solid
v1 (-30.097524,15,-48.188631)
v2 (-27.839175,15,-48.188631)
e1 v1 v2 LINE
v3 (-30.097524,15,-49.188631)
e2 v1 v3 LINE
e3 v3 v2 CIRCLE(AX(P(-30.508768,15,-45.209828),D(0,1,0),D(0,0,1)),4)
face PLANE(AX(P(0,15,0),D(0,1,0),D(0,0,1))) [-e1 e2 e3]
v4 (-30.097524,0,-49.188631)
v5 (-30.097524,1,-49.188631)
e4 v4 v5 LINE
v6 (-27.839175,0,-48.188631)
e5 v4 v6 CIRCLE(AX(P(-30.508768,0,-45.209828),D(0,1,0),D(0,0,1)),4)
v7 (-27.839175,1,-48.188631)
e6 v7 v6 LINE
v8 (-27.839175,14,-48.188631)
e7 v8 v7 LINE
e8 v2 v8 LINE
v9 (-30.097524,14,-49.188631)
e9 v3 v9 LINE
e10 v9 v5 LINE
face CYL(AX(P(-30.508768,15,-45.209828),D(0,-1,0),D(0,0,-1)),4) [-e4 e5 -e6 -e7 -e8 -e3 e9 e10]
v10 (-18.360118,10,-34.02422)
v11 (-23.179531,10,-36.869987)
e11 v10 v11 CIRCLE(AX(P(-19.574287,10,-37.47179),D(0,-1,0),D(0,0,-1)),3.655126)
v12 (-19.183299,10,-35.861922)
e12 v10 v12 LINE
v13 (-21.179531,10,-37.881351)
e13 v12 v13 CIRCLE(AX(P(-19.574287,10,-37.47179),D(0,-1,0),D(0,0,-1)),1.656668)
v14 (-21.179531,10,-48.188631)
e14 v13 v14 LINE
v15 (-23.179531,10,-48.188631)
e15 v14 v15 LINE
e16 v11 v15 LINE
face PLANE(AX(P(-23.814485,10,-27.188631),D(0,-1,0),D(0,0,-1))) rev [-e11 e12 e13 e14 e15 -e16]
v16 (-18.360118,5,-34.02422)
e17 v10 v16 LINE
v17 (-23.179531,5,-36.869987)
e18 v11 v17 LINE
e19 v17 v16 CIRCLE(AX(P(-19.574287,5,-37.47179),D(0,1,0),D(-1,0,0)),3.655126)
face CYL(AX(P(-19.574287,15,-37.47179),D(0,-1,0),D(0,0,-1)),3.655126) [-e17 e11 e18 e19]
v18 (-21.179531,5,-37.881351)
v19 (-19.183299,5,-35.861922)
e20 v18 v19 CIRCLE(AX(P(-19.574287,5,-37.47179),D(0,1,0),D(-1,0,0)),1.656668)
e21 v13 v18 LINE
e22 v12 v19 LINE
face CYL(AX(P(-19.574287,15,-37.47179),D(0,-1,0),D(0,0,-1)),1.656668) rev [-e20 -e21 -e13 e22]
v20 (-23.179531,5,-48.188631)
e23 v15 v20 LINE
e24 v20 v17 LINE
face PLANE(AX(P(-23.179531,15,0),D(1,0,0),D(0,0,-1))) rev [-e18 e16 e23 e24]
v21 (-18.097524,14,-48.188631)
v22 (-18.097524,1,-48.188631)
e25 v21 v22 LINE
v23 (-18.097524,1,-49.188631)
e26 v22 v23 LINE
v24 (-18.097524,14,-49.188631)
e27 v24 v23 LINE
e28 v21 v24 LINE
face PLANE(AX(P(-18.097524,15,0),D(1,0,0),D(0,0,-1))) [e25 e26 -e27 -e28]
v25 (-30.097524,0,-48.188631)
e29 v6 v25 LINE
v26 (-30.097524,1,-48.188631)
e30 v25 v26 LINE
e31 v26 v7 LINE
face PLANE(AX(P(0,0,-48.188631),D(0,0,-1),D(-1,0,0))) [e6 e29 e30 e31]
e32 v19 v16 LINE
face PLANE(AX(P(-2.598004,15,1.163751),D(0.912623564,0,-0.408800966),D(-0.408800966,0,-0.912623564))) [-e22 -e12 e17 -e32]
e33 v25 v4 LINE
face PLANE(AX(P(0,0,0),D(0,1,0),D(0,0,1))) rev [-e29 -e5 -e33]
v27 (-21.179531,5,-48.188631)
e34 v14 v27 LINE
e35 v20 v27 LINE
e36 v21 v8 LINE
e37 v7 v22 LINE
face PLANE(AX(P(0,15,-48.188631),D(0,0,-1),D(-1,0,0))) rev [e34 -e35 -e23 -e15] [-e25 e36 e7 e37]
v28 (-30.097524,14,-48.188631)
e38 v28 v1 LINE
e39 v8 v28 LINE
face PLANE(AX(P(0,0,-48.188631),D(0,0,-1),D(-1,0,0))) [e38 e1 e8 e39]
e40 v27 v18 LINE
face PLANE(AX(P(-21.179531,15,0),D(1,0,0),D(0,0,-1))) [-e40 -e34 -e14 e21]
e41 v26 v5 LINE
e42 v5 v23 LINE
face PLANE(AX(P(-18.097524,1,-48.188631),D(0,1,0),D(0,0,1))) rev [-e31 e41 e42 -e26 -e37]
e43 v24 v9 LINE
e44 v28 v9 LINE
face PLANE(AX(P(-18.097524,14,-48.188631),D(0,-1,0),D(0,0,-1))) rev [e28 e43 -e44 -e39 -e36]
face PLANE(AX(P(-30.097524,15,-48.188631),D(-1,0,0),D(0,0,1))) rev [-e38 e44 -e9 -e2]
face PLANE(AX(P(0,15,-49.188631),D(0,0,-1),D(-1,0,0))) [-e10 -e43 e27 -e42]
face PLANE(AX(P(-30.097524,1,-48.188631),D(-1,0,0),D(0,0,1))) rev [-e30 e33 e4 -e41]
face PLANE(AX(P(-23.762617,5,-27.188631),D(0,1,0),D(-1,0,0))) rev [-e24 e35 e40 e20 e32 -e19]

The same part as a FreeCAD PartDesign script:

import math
import FreeCAD as App
import Part
import Sketcher
from FreeCAD import Vector
Q = App.Units.Quantity

doc = App.newDocument("Part")
params = doc.addObject("Spreadsheet::Sheet", "Params")
for row, (alias, value) in enumerate([
    ("sketch1_radius", "4 mm"),
    ("sketch1_width", "12 mm"),
    ("sketch1_height", "1 mm"),
    ("pad1_length", "15 mm"),
    ("sketch2_width", "12 mm"),
    ("sketch2_height", "1 mm"),
    ("pocket1_length", "1 mm"),
    ("pocket2_length", "21 mm"),
], start=1):
    params.set(f"A{row}", alias)
    params.set(f"B{row}", "=" + value)
    params.setAlias(f"B{row}", alias)

body = doc.addObject("PartDesign::Body", "Body")

# Sketch on XZ plane
sketch1 = doc.addObject("Sketcher::SketchObject", "Sketch")
body.addObject(sketch1)
sketch1.AttachmentSupport = (doc.XZ_Plane, [""])
sketch1.MapMode = "FlatFace"
sketch1.addGeometry([
    Part.ArcOfCircle(Part.Circle(Vector(-30.5, -45.2, 0), Vector(0, 0, 1), 4), math.radians(-48), math.radians(0)),  # 0
    Part.LineSegment(Vector(-27.8, -48.2, 0), Vector(-23.2, -48.2, 0)),  # 1
    Part.LineSegment(Vector(-23.2, -48.2, 0), Vector(-23.2, -36.9, 0)),  # 2
    Part.ArcOfCircle(Part.Circle(Vector(-19.6, -37.5, 0), Vector(0, 0, 1), 3.7), math.radians(71), math.radians(171)),  # 3
    Part.LineSegment(Vector(-18.4, -34, 0), Vector(-19.2, -35.9, 0)),  # 4
    Part.ArcOfCircle(Part.Circle(Vector(-19.6, -37.5, 0), Vector(0, 0, 1), 1.7), math.radians(76), math.radians(166)),  # 5
    Part.ArcOfCircle(Part.Circle(Vector(-19.6, -37.5, 0), Vector(0, 0, 1), 1.7), math.radians(166), math.radians(194)),  # 6
    Part.LineSegment(Vector(-21.2, -37.9, 0), Vector(-21.2, -48.2, 0)),  # 7
    Part.LineSegment(Vector(-21.2, -48.2, 0), Vector(-18.1, -48.2, 0)),  # 8
    Part.LineSegment(Vector(-18.1, -48.2, 0), Vector(-18.1, -49.2, 0)),  # 9
    Part.LineSegment(Vector(-18.1, -49.2, 0), Vector(-30.1, -49.2, 0)),  # 10
    Part.ArcOfCircle(Part.Circle(Vector(-30.5, -45.2, 0), Vector(0, 0, 1), 4), math.radians(0), math.radians(276)),  # 11
], False)
sketch1.addConstraint([
    Sketcher.Constraint("Coincident", 0, 1, 1, 1),
    Sketcher.Constraint("Coincident", 1, 2, 2, 1),
    Sketcher.Constraint("Coincident", 2, 2, 3, 2),
    Sketcher.Constraint("Coincident", 3, 1, 4, 1),
    Sketcher.Constraint("Coincident", 4, 2, 5, 1),
    Sketcher.Constraint("Tangent", 5, 2, 6, 1),
    Sketcher.Constraint("Coincident", 6, 2, 7, 1),
    Sketcher.Constraint("Coincident", 7, 2, 8, 1),
    Sketcher.Constraint("Coincident", 8, 2, 9, 1),
    Sketcher.Constraint("Coincident", 9, 2, 10, 1),
    Sketcher.Constraint("Coincident", 10, 2, 11, 2),
    Sketcher.Constraint("Tangent", 11, 1, 0, 2),
    Sketcher.Constraint("Horizontal", 1),
    Sketcher.Constraint("Vertical", 2),
    Sketcher.Constraint("Vertical", 7),
    Sketcher.Constraint("Horizontal", 8),
    Sketcher.Constraint("Vertical", 9),
    Sketcher.Constraint("Horizontal", 10),
    Sketcher.Constraint("Coincident", 5, 3, 3, 3),
    Sketcher.Constraint("Equal", 5, 6),
    Sketcher.Constraint("Equal", 0, 11),
    Sketcher.Constraint("Horizontal", 1, 2, 7, 2),
    Sketcher.Constraint("Horizontal", 0, 3, 11, 1),
    Sketcher.Constraint("Vertical", 5, 2, 6, 2),
    Sketcher.Constraint("Radius", 0, Q("4 mm")),
    Sketcher.Constraint("DistanceX", 10, 2, 10, 1, Q("12 mm")),
    Sketcher.Constraint("DistanceY", 9, 2, 9, 1, Q("1 mm")),
    Sketcher.Constraint("DistanceX", 2, 2, 5, 2, Q("2 mm")),
    Sketcher.Constraint("Radius", 3, Q("3.655126 mm")),
    Sketcher.Constraint("Radius", 5, Q("1.656668 mm")),
    Sketcher.Constraint("DistanceY", 7, 2, 7, 1, Q("10.30728 mm")),
    Sketcher.Constraint("DistanceX", 4, 2, -1, 1, Q("19.183299 mm")),
    Sketcher.Constraint("DistanceX", 1, 1, 1, 2, Q("4.659644 mm")),
    Sketcher.Constraint("DistanceX", 8, 1, 8, 2, Q("3.082007 mm")),
    Sketcher.Constraint("DistanceY", 2, 1, 2, 2, Q("11.318644 mm")),
    Sketcher.Constraint("DistanceY", 3, 3, -1, 1, Q("37.47179 mm")),
    Sketcher.Constraint("DistanceX", 1, 2, -1, 1, Q("23.179531 mm")),
    Sketcher.Constraint("DistanceY", 3, 1, -1, 1, Q("34.02422 mm")),
])
sketch1.setExpression("Constraints[24]", "Params.sketch1_radius")
sketch1.setExpression("Constraints[25]", "Params.sketch1_width")
sketch1.setExpression("Constraints[26]", "Params.sketch1_height")
pad1 = doc.addObject("PartDesign::Pad", "Pad")
body.addObject(pad1)
pad1.Profile = sketch1
pad1.setExpression("Length", "Params.pad1_length")
pad1.Reversed = True

# Sketch on XY plane
sketch2 = doc.addObject("Sketcher::SketchObject", "Sketch001")
body.addObject(sketch2)
sketch2.AttachmentSupport = (doc.XY_Plane, [""])
sketch2.MapMode = "FlatFace"
sketch2.AttachmentOffset = App.Placement(Vector(0, 0, -49.188631), App.Rotation())
sketch2.addGeometry([
    Part.LineSegment(Vector(-18.1, 15, 0), Vector(-18.1, 14, 0)),  # 0
    Part.LineSegment(Vector(-18.1, 14, 0), Vector(-30.1, 14, 0)),  # 1
    Part.LineSegment(Vector(-30.1, 14, 0), Vector(-30.1, 15, 0)),  # 2
    Part.LineSegment(Vector(-30.1, 15, 0), Vector(-18.1, 15, 0)),  # 3
    Part.LineSegment(Vector(-18.1, 1, 0), Vector(-18.1, 0, 0)),  # 4
    Part.LineSegment(Vector(-18.1, 0, 0), Vector(-30.1, 0, 0)),  # 5
    Part.LineSegment(Vector(-30.1, 0, 0), Vector(-30.1, 1, 0)),  # 6
    Part.LineSegment(Vector(-30.1, 1, 0), Vector(-18.1, 1, 0)),  # 7
], False)
sketch2.addConstraint([
    Sketcher.Constraint("Coincident", 0, 2, 1, 1),
    Sketcher.Constraint("Coincident", 1, 2, 2, 1),
    Sketcher.Constraint("Coincident", 2, 2, 3, 1),
    Sketcher.Constraint("Coincident", 3, 2, 0, 1),
    Sketcher.Constraint("Coincident", 4, 2, 5, 1),
    Sketcher.Constraint("Coincident", 5, 2, 6, 1),
    Sketcher.Constraint("Coincident", 6, 2, 7, 1),
    Sketcher.Constraint("Coincident", 7, 2, 4, 1),
    Sketcher.Constraint("Vertical", 0),
    Sketcher.Constraint("Horizontal", 1),
    Sketcher.Constraint("Vertical", 2),
    Sketcher.Constraint("Horizontal", 3),
    Sketcher.Constraint("Vertical", 4),
    Sketcher.Constraint("Horizontal", 5),
    Sketcher.Constraint("Vertical", 6),
    Sketcher.Constraint("Horizontal", 7),
    Sketcher.Constraint("PointOnObject", 4, 2, -1),
    Sketcher.Constraint("Vertical", 3, 2, 4, 2),
    Sketcher.Constraint("Vertical", 2, 2, 5, 2),
    Sketcher.Constraint("Equal", 2, 4),
    Sketcher.Constraint("DistanceX", 1, 2, 1, 1, Q("12 mm")),
    Sketcher.Constraint("DistanceY", 0, 2, 0, 1, Q("1 mm")),
    Sketcher.Constraint("DistanceY", -1, 1, 0, 2, Q("14 mm")),
    Sketcher.Constraint("DistanceX", 0, 2, -1, 1, Q("18.097524 mm")),
])
sketch2.setExpression("Constraints[20]", "Params.sketch2_width")
sketch2.setExpression("Constraints[21]", "Params.sketch2_height")
pocket1 = doc.addObject("PartDesign::Pocket", "Pocket")
body.addObject(pocket1)
pocket1.Profile = sketch2
pocket1.setExpression("Length", "Params.pocket1_length")
pocket1.Reversed = True

# Sketch on XY plane
sketch3 = doc.addObject("Sketcher::SketchObject", "Sketch002")
body.addObject(sketch3)
sketch3.AttachmentSupport = (doc.XY_Plane, [""])
sketch3.MapMode = "FlatFace"
sketch3.AttachmentOffset = App.Placement(Vector(0, 0, -48.188631), App.Rotation())
sketch3.addGeometry([
    Part.LineSegment(Vector(-18, 16, 0), Vector(-18, 10, 0)),  # 0
    Part.LineSegment(Vector(-18, 10, 0), Vector(-24, 10, 0)),  # 1
    Part.LineSegment(Vector(-24, 10, 0), Vector(-24, 16, 0)),  # 2
    Part.LineSegment(Vector(-24, 16, 0), Vector(-18, 16, 0)),  # 3
    Part.LineSegment(Vector(-18, 5, 0), Vector(-18, -1, 0)),  # 4
    Part.LineSegment(Vector(-18, -1, 0), Vector(-24, -1, 0)),  # 5
    Part.LineSegment(Vector(-24, -1, 0), Vector(-24, 5, 0)),  # 6
    Part.LineSegment(Vector(-24, 5, 0), Vector(-18, 5, 0)),  # 7
], False)
sketch3.addConstraint([
    Sketcher.Constraint("Coincident", 0, 2, 1, 1),
    Sketcher.Constraint("Coincident", 1, 2, 2, 1),
    Sketcher.Constraint("Coincident", 2, 2, 3, 1),
    Sketcher.Constraint("Coincident", 3, 2, 0, 1),
    Sketcher.Constraint("Coincident", 4, 2, 5, 1),
    Sketcher.Constraint("Coincident", 5, 2, 6, 1),
    Sketcher.Constraint("Coincident", 6, 2, 7, 1),
    Sketcher.Constraint("Coincident", 7, 2, 4, 1),
    Sketcher.Constraint("Vertical", 0),
    Sketcher.Constraint("Horizontal", 1),
    Sketcher.Constraint("Vertical", 2),
    Sketcher.Constraint("Horizontal", 3),
    Sketcher.Constraint("Vertical", 4),
    Sketcher.Constraint("Horizontal", 5),
    Sketcher.Constraint("Vertical", 6),
    Sketcher.Constraint("Horizontal", 7),
    Sketcher.Constraint("Vertical", 3, 2, 4, 2),
    Sketcher.Constraint("DistanceY", -1, 1, 0, 2, Q("10 mm")),
    Sketcher.Constraint("DistanceY", -1, 1, 6, 2, Q("5 mm")),
    Sketcher.Constraint("DistanceX", 5, 2, 5, 1, Q("5.97691 mm")),
    Sketcher.Constraint("DistanceY", 4, 2, 4, 1, Q("6.219072 mm")),
    Sketcher.Constraint("DistanceX", 1, 2, 1, 1, Q("6.028777 mm")),
    Sketcher.Constraint("DistanceY", 0, 2, 0, 1, Q("6.351314 mm")),
    Sketcher.Constraint("DistanceX", 0, 2, -1, 1, Q("17.785708 mm")),
])
pocket2 = doc.addObject("PartDesign::Pocket", "Pocket001")
body.addObject(pocket2)
pocket2.Profile = sketch3
pocket2.setExpression("Length", "Params.pocket2_length")
pocket2.Reversed = True

doc.recompute()
